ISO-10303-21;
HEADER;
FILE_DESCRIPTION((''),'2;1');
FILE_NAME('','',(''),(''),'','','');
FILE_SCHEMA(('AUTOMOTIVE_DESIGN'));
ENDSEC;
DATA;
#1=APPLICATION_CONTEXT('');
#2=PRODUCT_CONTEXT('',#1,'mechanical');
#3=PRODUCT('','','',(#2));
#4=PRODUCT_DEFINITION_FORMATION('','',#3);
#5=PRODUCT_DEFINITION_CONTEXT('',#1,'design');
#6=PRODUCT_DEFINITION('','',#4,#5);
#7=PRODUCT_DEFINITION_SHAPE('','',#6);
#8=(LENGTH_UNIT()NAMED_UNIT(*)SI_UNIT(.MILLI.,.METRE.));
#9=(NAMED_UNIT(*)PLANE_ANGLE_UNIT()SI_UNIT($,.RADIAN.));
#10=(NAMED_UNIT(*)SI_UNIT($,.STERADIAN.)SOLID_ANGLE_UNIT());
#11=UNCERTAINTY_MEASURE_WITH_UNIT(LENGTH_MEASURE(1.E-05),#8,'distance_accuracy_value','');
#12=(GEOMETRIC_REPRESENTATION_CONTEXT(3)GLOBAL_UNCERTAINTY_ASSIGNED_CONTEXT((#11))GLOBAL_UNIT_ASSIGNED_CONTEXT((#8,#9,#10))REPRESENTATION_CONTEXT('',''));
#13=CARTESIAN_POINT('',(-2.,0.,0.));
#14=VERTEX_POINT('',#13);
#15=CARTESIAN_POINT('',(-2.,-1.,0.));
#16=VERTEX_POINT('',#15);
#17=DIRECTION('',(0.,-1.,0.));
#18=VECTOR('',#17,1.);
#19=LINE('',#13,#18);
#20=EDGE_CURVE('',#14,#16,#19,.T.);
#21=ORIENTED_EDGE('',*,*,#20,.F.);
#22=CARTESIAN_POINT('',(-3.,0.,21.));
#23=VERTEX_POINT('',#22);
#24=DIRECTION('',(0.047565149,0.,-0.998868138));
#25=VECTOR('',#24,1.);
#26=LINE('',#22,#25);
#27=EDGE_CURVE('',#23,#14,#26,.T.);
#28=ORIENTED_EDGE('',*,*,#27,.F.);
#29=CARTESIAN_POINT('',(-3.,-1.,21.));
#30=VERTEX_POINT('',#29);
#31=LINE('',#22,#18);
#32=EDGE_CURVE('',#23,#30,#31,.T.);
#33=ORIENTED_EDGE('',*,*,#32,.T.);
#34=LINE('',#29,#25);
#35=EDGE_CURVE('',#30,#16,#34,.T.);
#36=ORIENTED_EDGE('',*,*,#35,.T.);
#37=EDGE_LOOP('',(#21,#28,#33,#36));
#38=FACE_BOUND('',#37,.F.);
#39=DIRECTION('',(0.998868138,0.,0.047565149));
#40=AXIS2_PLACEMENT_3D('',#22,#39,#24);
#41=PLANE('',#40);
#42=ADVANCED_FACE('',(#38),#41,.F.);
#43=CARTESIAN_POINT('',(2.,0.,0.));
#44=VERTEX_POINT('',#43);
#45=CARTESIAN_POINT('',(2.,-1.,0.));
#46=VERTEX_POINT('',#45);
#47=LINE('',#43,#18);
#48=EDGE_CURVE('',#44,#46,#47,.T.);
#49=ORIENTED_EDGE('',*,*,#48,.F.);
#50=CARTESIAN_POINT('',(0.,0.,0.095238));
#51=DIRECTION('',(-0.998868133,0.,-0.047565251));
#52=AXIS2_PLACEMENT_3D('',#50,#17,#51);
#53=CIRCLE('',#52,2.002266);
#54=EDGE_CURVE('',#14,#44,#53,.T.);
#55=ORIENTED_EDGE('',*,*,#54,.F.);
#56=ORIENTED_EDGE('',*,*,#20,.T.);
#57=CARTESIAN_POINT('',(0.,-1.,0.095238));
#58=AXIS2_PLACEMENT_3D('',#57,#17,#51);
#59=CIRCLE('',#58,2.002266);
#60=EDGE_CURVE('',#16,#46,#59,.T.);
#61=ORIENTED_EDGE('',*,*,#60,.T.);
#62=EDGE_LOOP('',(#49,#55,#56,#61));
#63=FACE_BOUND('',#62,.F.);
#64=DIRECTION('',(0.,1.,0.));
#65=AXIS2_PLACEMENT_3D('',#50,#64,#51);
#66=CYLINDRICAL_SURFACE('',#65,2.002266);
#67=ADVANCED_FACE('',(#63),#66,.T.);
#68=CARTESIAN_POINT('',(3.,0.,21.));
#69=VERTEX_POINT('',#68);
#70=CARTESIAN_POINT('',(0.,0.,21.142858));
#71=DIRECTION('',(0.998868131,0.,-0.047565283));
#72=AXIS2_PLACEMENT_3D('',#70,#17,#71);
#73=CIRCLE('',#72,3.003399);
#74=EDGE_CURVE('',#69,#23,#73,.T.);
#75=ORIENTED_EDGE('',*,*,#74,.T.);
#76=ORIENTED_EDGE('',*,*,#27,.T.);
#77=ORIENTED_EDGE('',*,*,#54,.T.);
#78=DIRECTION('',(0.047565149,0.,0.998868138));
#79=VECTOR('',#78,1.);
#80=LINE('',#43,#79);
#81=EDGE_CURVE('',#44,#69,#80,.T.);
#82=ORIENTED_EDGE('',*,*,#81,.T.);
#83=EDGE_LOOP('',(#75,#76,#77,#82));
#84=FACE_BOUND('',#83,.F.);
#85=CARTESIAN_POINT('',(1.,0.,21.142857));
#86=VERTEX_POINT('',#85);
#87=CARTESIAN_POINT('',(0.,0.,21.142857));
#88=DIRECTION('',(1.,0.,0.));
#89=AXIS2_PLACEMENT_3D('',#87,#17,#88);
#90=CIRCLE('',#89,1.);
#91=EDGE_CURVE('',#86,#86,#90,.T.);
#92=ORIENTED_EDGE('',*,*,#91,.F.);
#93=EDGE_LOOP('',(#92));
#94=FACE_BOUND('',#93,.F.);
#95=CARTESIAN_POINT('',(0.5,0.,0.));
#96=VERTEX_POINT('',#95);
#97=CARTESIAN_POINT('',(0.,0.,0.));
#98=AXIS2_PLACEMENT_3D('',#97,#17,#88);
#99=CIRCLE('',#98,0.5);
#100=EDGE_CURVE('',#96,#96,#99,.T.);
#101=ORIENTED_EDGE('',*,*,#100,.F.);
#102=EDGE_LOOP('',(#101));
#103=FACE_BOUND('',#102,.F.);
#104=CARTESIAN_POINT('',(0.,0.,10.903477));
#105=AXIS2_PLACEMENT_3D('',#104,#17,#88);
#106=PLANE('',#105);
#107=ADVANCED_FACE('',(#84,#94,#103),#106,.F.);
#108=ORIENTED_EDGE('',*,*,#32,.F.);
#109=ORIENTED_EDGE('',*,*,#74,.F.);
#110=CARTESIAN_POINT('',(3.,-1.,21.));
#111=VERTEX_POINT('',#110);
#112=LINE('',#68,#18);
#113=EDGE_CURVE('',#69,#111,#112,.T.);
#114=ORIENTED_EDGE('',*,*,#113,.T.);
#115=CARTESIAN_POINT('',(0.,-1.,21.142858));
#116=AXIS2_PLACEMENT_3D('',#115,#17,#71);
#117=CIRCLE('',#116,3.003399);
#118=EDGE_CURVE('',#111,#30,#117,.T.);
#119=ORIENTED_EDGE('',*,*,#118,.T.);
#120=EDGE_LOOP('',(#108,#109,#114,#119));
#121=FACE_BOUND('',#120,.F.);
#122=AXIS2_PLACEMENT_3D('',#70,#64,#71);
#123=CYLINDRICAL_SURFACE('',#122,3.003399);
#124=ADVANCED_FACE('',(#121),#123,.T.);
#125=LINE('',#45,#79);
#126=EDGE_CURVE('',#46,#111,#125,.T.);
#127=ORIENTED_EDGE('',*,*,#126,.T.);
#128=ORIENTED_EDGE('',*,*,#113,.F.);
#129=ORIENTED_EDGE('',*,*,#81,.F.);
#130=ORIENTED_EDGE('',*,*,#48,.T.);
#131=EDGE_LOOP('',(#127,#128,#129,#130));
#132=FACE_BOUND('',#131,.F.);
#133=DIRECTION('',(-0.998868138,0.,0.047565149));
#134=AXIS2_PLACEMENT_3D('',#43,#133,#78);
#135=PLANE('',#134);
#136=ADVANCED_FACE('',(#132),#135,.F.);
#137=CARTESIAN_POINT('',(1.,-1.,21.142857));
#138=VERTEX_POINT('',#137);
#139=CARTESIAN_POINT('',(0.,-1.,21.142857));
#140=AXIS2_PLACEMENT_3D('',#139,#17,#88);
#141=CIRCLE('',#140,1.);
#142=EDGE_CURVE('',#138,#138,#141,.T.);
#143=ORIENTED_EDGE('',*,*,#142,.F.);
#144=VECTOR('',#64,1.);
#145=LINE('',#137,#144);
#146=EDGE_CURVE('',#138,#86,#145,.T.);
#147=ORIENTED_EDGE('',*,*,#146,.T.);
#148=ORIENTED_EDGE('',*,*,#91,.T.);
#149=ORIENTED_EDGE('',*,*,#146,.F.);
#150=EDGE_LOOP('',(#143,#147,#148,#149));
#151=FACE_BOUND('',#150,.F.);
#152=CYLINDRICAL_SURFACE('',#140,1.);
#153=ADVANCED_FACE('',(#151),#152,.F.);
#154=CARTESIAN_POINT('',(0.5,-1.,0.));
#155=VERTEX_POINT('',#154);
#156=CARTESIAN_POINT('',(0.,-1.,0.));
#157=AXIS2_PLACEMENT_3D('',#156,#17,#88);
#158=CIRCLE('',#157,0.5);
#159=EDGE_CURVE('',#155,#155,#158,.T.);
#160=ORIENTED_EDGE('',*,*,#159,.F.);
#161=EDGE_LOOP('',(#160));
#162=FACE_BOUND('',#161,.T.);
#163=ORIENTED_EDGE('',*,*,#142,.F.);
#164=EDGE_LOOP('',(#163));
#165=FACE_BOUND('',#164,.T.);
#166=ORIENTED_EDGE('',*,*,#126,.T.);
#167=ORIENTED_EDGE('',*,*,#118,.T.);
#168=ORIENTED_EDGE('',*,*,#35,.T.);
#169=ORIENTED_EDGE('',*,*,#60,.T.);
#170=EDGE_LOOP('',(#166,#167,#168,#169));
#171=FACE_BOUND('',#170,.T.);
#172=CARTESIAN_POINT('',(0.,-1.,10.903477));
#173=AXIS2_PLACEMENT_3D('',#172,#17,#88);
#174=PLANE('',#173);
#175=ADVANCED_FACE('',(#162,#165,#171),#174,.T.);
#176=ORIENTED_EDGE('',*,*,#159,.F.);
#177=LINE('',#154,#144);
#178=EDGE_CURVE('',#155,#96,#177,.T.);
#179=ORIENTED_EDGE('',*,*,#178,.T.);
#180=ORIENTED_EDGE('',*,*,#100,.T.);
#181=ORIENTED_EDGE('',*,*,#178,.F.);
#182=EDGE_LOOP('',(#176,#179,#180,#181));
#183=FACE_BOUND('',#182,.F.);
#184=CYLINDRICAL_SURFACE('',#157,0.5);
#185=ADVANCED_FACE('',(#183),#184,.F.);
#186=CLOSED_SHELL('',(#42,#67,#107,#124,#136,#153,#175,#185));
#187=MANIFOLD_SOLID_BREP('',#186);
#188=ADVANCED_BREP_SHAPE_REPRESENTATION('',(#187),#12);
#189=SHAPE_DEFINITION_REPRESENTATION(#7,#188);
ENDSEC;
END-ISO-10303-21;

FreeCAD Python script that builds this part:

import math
import FreeCAD as App
import Part
import Sketcher

V = App.Vector
Q = App.Units.Quantity

doc = App.newDocument("Part")
body = doc.addObject("PartDesign::Body", "Body")

# Sketch on XZ plane
sketch1 = body.newObject("Sketcher::SketchObject", "Sketch")
sketch1.AttachmentSupport = (doc.getObject("XZ_Plane"), [""])
sketch1.MapMode = "FlatFace"
sketch1.addGeometry([
    Part.LineSegment(V(-3, 21, 0), V(-2, 0, 0)),
    Part.ArcOfCircle(Part.Circle(V(0, 0.1, 0), V(0, 0, 1), 2), math.radians(-177), math.radians(-3)),
    Part.LineSegment(V(2, 0, 0), V(3, 21, 0)),
    Part.ArcOfCircle(Part.Circle(V(0, 21.1, 0), V(0, 0, 1), 3), math.radians(-3), math.radians(183)),
], False)
sketch1.addConstraint([
    Sketcher.Constraint("Tangent", 0, 2, 1, 1),
    Sketcher.Constraint("Tangent", 1, 2, 2, 1),
    Sketcher.Constraint("Tangent", 2, 2, 3, 1),
    Sketcher.Constraint("Tangent", 3, 2, 0, 1),
    Sketcher.Constraint("Symmetric", 0, 2, 1, 2, -1, 1),
    Sketcher.Constraint("PointOnObject", 1, 3, -2),
    Sketcher.Constraint("DistanceX", 0, 2, -1, 1, Q("2 mm")),
    Sketcher.Constraint("DistanceX", -1, 1, 2, 2, Q("3 mm")),
    Sketcher.Constraint("DistanceY", -1, 1, 2, 2, Q("21 mm")),
])
pad1 = body.newObject("PartDesign::Pad", "Pad")
pad1.Profile = sketch1
pad1.Length = 1

# Sketch on XZ plane
sketch2 = body.newObject("Sketcher::SketchObject", "Sketch001")
sketch2.AttachmentSupport = (doc.getObject("XZ_Plane"), [""])
sketch2.MapMode = "FlatFace"
sketch2.AttachmentOffset = App.Placement(V(0, 0, 1), App.Rotation())
sketch2.addGeometry([
    Part.Circle(V(0, 21.1, 0), V(0, 0, 1), 1),
    Part.Circle(V(0, 0, 0), V(0, 0, 1), 0.5),
], False)
sketch2.addConstraint([
    Sketcher.Constraint("Coincident", 1, 3, -1, 1),
    Sketcher.Constraint("PointOnObject", 0, 3, -2),
    Sketcher.Constraint("Diameter", 0, Q("2 mm")),
    Sketcher.Constraint("Diameter", 1, Q("1 mm")),
    Sketcher.Constraint("DistanceY", -1, 1, 0, 3, Q("21.142857 mm")),
])
pocket1 = body.newObject("PartDesign::Pocket", "Pocket")
pocket1.Profile = sketch2
pocket1.Type = "ThroughAll"

doc.recompute()
